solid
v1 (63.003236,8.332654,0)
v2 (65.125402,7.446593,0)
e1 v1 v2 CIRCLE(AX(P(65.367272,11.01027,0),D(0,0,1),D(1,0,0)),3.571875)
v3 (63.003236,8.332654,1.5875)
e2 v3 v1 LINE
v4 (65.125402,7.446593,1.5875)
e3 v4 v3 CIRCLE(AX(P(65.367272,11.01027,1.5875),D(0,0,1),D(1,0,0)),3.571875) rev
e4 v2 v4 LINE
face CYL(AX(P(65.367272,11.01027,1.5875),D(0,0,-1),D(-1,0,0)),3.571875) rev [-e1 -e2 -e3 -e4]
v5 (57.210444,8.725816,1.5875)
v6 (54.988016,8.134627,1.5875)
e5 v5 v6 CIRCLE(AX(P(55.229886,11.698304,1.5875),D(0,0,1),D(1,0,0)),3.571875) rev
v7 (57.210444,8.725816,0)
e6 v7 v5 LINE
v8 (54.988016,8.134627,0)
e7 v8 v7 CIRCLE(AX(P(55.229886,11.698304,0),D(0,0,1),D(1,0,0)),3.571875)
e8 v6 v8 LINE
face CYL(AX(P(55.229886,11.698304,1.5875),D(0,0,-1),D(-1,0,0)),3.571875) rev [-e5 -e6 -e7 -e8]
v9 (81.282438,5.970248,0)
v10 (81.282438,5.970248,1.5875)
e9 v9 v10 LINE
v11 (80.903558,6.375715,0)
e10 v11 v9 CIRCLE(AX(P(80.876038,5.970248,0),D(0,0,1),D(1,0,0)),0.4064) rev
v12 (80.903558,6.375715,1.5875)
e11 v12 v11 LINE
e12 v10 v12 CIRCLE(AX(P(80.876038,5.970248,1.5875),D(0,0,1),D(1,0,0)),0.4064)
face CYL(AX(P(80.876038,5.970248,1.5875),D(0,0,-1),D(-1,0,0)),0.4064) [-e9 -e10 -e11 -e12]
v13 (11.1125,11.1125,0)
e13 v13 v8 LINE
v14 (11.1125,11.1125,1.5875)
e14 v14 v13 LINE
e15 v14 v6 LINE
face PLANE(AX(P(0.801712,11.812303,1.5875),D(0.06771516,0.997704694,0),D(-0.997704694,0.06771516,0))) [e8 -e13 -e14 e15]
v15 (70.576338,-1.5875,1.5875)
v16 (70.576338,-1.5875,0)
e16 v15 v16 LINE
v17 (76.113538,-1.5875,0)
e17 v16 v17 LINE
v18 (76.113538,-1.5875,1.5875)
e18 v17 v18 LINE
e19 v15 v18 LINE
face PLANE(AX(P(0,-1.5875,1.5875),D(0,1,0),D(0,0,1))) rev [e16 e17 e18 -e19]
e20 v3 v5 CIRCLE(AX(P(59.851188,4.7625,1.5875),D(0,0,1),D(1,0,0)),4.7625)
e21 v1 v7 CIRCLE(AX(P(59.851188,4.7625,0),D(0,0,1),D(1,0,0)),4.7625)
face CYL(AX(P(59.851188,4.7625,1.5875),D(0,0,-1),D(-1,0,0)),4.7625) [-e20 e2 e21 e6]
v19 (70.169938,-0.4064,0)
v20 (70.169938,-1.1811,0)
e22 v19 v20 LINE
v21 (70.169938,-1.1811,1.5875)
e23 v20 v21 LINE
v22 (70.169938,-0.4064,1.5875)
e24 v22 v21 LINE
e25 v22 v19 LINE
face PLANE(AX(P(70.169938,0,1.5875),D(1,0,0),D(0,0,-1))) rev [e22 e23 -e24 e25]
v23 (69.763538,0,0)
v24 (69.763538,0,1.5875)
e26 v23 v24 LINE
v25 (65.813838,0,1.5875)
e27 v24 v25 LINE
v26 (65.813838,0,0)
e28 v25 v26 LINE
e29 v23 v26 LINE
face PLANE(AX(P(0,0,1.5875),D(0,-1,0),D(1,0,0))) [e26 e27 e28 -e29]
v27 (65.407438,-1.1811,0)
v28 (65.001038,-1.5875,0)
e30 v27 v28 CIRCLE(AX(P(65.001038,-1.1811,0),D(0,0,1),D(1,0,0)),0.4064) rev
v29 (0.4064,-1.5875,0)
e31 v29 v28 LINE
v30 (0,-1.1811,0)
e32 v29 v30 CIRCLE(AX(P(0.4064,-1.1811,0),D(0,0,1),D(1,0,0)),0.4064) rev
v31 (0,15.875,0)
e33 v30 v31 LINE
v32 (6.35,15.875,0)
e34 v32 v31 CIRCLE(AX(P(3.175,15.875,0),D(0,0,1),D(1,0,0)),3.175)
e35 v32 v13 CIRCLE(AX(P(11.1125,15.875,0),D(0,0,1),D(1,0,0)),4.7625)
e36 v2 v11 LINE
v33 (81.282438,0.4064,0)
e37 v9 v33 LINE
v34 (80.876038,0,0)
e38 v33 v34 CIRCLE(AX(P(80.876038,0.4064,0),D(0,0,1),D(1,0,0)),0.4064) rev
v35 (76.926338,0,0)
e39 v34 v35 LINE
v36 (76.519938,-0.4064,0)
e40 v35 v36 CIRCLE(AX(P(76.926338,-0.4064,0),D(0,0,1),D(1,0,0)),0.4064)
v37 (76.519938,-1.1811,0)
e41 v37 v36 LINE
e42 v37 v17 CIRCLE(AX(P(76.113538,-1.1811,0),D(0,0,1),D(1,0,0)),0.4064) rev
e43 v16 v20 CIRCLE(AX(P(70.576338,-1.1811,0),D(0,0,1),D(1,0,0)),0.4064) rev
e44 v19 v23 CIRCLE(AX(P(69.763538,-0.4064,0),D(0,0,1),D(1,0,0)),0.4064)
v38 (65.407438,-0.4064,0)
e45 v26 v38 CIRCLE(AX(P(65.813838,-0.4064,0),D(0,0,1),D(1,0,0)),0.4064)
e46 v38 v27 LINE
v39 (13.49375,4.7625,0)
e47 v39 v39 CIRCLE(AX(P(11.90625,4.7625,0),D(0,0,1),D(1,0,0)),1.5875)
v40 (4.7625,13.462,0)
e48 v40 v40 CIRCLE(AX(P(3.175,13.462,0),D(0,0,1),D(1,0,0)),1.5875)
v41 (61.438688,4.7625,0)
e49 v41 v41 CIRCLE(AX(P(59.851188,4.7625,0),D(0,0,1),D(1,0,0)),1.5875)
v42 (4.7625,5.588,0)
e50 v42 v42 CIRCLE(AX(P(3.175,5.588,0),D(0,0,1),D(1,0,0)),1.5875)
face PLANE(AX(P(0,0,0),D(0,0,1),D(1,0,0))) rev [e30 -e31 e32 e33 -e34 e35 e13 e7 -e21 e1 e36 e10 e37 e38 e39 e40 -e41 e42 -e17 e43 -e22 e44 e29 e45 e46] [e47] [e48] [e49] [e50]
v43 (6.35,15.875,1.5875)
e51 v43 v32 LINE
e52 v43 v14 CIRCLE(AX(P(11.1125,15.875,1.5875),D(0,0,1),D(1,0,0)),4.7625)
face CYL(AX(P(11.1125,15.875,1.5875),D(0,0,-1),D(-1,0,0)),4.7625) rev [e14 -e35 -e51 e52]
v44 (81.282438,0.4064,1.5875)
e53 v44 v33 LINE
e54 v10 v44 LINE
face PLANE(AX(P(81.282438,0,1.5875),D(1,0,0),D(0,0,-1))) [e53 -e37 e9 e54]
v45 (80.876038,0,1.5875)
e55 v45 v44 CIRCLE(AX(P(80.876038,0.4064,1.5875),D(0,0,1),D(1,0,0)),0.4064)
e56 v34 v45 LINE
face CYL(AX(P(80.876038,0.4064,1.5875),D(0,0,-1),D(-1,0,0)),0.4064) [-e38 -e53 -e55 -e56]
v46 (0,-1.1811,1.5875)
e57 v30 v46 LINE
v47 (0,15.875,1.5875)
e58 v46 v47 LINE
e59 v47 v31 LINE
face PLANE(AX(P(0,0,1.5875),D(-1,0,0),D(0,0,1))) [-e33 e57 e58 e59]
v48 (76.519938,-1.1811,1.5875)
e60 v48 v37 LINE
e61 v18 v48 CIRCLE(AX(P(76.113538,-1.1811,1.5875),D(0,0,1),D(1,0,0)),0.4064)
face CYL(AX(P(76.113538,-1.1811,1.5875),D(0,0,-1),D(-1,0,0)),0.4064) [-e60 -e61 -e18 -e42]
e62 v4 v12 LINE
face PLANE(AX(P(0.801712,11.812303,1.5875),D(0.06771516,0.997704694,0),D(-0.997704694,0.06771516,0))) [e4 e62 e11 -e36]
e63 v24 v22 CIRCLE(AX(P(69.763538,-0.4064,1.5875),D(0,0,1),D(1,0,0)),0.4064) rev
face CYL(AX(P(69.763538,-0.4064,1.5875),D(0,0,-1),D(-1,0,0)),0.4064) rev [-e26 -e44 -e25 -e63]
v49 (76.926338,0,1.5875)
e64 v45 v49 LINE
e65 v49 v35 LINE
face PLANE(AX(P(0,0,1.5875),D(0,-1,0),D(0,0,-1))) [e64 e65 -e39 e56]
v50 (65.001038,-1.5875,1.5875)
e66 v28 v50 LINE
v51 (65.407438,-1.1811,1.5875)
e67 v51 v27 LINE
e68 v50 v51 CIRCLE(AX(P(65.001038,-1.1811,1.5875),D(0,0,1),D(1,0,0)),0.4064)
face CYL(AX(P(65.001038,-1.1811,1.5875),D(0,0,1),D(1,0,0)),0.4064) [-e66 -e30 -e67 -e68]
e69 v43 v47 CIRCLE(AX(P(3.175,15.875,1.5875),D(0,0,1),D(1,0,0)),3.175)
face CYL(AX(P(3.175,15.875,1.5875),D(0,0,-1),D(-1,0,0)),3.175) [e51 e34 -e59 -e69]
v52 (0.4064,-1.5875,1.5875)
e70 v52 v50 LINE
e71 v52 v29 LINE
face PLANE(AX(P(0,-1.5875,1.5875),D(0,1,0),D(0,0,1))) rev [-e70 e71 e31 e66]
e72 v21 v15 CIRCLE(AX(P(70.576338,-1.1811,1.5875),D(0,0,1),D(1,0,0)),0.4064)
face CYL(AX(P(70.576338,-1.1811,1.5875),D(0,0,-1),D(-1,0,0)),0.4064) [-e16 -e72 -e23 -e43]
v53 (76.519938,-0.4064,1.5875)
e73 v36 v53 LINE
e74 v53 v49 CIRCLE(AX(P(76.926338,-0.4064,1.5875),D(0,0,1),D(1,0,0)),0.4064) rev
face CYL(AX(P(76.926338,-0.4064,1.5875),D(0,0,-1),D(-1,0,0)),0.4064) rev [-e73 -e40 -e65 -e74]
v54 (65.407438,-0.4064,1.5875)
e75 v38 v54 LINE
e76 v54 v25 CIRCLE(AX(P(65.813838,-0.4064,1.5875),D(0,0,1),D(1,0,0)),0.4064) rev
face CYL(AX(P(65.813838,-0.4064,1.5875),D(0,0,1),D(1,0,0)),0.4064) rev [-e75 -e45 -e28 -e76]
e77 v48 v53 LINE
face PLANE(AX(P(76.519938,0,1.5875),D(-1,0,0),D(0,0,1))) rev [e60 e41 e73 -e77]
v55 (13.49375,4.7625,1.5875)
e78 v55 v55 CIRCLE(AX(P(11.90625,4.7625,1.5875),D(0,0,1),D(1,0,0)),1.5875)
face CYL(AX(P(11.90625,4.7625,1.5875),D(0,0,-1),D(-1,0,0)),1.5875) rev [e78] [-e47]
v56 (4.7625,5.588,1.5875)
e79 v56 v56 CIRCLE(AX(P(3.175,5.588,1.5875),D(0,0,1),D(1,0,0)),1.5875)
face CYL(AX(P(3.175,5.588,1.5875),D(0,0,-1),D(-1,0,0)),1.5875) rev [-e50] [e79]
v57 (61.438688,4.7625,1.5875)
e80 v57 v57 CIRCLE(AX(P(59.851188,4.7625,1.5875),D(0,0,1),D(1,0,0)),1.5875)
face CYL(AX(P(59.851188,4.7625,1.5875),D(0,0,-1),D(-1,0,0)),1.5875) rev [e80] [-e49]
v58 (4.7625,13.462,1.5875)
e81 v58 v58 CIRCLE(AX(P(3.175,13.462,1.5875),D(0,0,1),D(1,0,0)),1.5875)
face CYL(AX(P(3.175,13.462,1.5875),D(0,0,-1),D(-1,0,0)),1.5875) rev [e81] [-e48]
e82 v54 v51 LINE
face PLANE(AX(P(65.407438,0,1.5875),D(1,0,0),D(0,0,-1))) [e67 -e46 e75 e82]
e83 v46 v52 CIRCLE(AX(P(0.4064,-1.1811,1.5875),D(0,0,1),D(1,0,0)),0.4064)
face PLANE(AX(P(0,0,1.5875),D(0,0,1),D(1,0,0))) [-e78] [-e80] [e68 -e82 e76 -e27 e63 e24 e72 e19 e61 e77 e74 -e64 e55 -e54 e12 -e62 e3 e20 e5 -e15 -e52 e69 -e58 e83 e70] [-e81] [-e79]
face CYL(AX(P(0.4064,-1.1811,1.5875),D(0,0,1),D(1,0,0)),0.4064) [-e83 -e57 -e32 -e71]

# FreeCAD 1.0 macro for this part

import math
import FreeCAD as App
import Part
import Sketcher

V = App.Vector
Q = App.Units.Quantity


def edges_at(feature, points):
    """Names of the edges that pass closest to the given points."""
    edges = feature.Shape.Edges
    near = lambda p: min(range(len(edges)), key=lambda i: edges[i].distToShape(Part.Vertex(*p))[0])
    return sorted({f"Edge{near(p) + 1}" for p in points})

doc = App.newDocument("Part")
body = doc.addObject("PartDesign::Body", "Body")

sketch1 = doc.addObject("Sketcher::SketchObject", "Sketch")
body.addObject(sketch1)
sketch1.AttachmentSupport = (doc.XY_Plane, [""])
sketch1.MapMode = "FlatFace"
sketch1.addGeometry([
    Part.LineSegment(V(0, -1.6, 0), V(65.4, -1.6, 0)),
    Part.LineSegment(V(65.4, -1.6, 0), V(65.4, 0, 0)),
    Part.LineSegment(V(65.4, 0, 0), V(70.2, 0, 0)),
    Part.LineSegment(V(70.2, 0, 0), V(70.2, -1.6, 0)),
    Part.LineSegment(V(70.2, -1.6, 0), V(76.5, -1.6, 0)),
    Part.LineSegment(V(76.5, -1.6, 0), V(76.5, 0, 0)),
    Part.LineSegment(V(76.5, 0, 0), V(81.3, 0, 0)),
    Part.LineSegment(V(81.3, 0, 0), V(81.3, 6.3, 0)),
    Part.LineSegment(V(81.3, 6.3, 0), V(63.7, 7.5, 0)),
    Part.ArcOfCircle(Part.Circle(V(59.9, 4.8, 0), V(0, 0, 1), 4.8), math.radians(36), math.radians(137)),
    Part.LineSegment(V(56.4, 8, 0), V(11.1, 11.1, 0)),
    Part.ArcOfCircle(Part.Circle(V(11.1, 15.9, 0), V(0, 0, 1), 4.8), math.radians(-180), math.radians(-90)),
    Part.ArcOfCircle(Part.Circle(V(3.2, 15.9, 0), V(0, 0, 1), 3.2), math.radians(0), math.radians(180)),
    Part.LineSegment(V(0, 15.9, 0), V(0, -1.6, 0)),
    Part.Circle(V(3.2, 5.6, 0), V(0, 0, 1), 1.6),
    Part.Circle(V(11.9, 4.8, 0), V(0, 0, 1), 1.6),
    Part.Circle(V(59.9, 4.8, 0), V(0, 0, 1), 1.6),
    Part.Circle(V(3.2, 13.5, 0), V(0, 0, 1), 1.6),
], False)
sketch1.addConstraint([
    Sketcher.Constraint("Coincident", 0, 2, 1, 1),
    Sketcher.Constraint("Coincident", 1, 2, 2, 1),
    Sketcher.Constraint("Coincident", 2, 2, 3, 1),
    Sketcher.Constraint("Coincident", 3, 2, 4, 1),
    Sketcher.Constraint("Coincident", 4, 2, 5, 1),
    Sketcher.Constraint("Coincident", 5, 2, 6, 1),
    Sketcher.Constraint("Coincident", 6, 2, 7, 1),
    Sketcher.Constraint("Coincident", 7, 2, 8, 1),
    Sketcher.Constraint("Coincident", 8, 2, 9, 1),
    Sketcher.Constraint("Coincident", 9, 2, 10, 1),
    Sketcher.Constraint("Coincident", 10, 2, 11, 2),
    Sketcher.Constraint("Tangent", 11, 1, 12, 1),
    Sketcher.Constraint("Tangent", 12, 2, 13, 1),
    Sketcher.Constraint("Coincident", 13, 2, 0, 1),
    Sketcher.Constraint("Horizontal", 0),
    Sketcher.Constraint("Vertical", 1),
    Sketcher.Constraint("Horizontal", 2),
    Sketcher.Constraint("Vertical", 3),
    Sketcher.Constraint("Horizontal", 4),
    Sketcher.Constraint("Vertical", 5),
    Sketcher.Constraint("Horizontal", 6),
    Sketcher.Constraint("Vertical", 7),
    Sketcher.Constraint("Vertical", 13),
    Sketcher.Constraint("Coincident", 16, 3, 9, 3),
    Sketcher.Constraint("Equal", 9, 11),
    Sketcher.Constraint("Equal", 14, 15),
    Sketcher.Constraint("Equal", 15, 16),
    Sketcher.Constraint("Equal", 16, 17),
    Sketcher.Constraint("PointOnObject", 1, 2, -1),
    Sketcher.Constraint("PointOnObject", 5, 2, -1),
    Sketcher.Constraint("PointOnObject", 12, 2, -2),
    Sketcher.Constraint("Parallel", 8, 10),
    Sketcher.Constraint("Horizontal", 11, 3, 12, 3),
    Sketcher.Constraint("Horizontal", 9, 3, 15, 3),
    Sketcher.Constraint("Horizontal", 0, 2, 3, 2),
    Sketcher.Constraint("Vertical", 12, 3, 14, 3),
    Sketcher.Constraint("Vertical", 14, 3, 17, 3),
    Sketcher.Constraint("Vertical", 11, 3, 10, 2),
    Sketcher.Constraint("Equal", 2, 6),
    Sketcher.Constraint("Equal", 4, 7),
    Sketcher.Constraint("Diameter", 14, Q("0.125 in")),
    Sketcher.Constraint("Radius", 9, Q("0.1875 in")),
    Sketcher.Constraint("Radius", 12, Q("0.125 in")),
    Sketcher.Constraint("DistanceX", 4, 1, 4, 2, Q("0.25 in")),
    Sketcher.Constraint("DistanceY", 13, 2, 10, 2, Q("0.5 in")),
    Sketcher.Constraint("DistanceX", 2, 1, 2, 2, Q("0.1875 in")),
    Sketcher.Constraint("DistanceY", 1, 1, 1, 2, Q("0.0625 in")),
    Sketcher.Constraint("DistanceY", -1, 1, 14, 3, Q("0.22 in")),
    Sketcher.Constraint("DistanceY", -1, 1, 17, 3, Q("0.53 in")),
    Sketcher.Constraint("DistanceY", 0, 2, 16, 3, Q("0.25 in")),
    Sketcher.Constraint("DistanceX", -1, 1, 15, 3, Q("0.46875 in")),
    Sketcher.Constraint("DistanceX", 16, 3, 0, 2, Q("0.21875 in")),
    Sketcher.Constraint("Distance", 10, Q("45.386698 mm")),
    Sketcher.Constraint("DistanceX", 0, 1, 0, 2, Q("65.407438 mm")),
])
pad1 = doc.addObject("PartDesign::Pad", "Pad")
body.addObject(pad1)
pad1.Profile = sketch1
pad1.Length = Q("0.0625 in")
doc.recompute()

fillet = doc.addObject("PartDesign::Fillet", "Fillet")
body.addObject(fillet)
fillet.Base = (pad1, edges_at(pad1, [
    (81.282, 6.35, 0.794),
    (81.282, 0, 0.794),
    (76.52, 0, 0.794),
    (76.52, -1.587, 0.794),
    (70.17, -1.587, 0.794),
    (70.17, 0, 0.794),
    (65.407, 0, 0.794),
    (65.407, -1.587, 0.794),
    (0, -1.587, 0.794),
]))
fillet.Radius = Q("0.016 in")
doc.recompute()

fillet2 = doc.addObject("PartDesign::Fillet", "Fillet001")
body.addObject(fillet2)
fillet2.Base = (fillet, edges_at(fillet, [(56.395, 8.039, 0.794), (63.718, 7.542, 0.794)]))
fillet2.Radius = Q("0.140625 in")

doc.recompute()
